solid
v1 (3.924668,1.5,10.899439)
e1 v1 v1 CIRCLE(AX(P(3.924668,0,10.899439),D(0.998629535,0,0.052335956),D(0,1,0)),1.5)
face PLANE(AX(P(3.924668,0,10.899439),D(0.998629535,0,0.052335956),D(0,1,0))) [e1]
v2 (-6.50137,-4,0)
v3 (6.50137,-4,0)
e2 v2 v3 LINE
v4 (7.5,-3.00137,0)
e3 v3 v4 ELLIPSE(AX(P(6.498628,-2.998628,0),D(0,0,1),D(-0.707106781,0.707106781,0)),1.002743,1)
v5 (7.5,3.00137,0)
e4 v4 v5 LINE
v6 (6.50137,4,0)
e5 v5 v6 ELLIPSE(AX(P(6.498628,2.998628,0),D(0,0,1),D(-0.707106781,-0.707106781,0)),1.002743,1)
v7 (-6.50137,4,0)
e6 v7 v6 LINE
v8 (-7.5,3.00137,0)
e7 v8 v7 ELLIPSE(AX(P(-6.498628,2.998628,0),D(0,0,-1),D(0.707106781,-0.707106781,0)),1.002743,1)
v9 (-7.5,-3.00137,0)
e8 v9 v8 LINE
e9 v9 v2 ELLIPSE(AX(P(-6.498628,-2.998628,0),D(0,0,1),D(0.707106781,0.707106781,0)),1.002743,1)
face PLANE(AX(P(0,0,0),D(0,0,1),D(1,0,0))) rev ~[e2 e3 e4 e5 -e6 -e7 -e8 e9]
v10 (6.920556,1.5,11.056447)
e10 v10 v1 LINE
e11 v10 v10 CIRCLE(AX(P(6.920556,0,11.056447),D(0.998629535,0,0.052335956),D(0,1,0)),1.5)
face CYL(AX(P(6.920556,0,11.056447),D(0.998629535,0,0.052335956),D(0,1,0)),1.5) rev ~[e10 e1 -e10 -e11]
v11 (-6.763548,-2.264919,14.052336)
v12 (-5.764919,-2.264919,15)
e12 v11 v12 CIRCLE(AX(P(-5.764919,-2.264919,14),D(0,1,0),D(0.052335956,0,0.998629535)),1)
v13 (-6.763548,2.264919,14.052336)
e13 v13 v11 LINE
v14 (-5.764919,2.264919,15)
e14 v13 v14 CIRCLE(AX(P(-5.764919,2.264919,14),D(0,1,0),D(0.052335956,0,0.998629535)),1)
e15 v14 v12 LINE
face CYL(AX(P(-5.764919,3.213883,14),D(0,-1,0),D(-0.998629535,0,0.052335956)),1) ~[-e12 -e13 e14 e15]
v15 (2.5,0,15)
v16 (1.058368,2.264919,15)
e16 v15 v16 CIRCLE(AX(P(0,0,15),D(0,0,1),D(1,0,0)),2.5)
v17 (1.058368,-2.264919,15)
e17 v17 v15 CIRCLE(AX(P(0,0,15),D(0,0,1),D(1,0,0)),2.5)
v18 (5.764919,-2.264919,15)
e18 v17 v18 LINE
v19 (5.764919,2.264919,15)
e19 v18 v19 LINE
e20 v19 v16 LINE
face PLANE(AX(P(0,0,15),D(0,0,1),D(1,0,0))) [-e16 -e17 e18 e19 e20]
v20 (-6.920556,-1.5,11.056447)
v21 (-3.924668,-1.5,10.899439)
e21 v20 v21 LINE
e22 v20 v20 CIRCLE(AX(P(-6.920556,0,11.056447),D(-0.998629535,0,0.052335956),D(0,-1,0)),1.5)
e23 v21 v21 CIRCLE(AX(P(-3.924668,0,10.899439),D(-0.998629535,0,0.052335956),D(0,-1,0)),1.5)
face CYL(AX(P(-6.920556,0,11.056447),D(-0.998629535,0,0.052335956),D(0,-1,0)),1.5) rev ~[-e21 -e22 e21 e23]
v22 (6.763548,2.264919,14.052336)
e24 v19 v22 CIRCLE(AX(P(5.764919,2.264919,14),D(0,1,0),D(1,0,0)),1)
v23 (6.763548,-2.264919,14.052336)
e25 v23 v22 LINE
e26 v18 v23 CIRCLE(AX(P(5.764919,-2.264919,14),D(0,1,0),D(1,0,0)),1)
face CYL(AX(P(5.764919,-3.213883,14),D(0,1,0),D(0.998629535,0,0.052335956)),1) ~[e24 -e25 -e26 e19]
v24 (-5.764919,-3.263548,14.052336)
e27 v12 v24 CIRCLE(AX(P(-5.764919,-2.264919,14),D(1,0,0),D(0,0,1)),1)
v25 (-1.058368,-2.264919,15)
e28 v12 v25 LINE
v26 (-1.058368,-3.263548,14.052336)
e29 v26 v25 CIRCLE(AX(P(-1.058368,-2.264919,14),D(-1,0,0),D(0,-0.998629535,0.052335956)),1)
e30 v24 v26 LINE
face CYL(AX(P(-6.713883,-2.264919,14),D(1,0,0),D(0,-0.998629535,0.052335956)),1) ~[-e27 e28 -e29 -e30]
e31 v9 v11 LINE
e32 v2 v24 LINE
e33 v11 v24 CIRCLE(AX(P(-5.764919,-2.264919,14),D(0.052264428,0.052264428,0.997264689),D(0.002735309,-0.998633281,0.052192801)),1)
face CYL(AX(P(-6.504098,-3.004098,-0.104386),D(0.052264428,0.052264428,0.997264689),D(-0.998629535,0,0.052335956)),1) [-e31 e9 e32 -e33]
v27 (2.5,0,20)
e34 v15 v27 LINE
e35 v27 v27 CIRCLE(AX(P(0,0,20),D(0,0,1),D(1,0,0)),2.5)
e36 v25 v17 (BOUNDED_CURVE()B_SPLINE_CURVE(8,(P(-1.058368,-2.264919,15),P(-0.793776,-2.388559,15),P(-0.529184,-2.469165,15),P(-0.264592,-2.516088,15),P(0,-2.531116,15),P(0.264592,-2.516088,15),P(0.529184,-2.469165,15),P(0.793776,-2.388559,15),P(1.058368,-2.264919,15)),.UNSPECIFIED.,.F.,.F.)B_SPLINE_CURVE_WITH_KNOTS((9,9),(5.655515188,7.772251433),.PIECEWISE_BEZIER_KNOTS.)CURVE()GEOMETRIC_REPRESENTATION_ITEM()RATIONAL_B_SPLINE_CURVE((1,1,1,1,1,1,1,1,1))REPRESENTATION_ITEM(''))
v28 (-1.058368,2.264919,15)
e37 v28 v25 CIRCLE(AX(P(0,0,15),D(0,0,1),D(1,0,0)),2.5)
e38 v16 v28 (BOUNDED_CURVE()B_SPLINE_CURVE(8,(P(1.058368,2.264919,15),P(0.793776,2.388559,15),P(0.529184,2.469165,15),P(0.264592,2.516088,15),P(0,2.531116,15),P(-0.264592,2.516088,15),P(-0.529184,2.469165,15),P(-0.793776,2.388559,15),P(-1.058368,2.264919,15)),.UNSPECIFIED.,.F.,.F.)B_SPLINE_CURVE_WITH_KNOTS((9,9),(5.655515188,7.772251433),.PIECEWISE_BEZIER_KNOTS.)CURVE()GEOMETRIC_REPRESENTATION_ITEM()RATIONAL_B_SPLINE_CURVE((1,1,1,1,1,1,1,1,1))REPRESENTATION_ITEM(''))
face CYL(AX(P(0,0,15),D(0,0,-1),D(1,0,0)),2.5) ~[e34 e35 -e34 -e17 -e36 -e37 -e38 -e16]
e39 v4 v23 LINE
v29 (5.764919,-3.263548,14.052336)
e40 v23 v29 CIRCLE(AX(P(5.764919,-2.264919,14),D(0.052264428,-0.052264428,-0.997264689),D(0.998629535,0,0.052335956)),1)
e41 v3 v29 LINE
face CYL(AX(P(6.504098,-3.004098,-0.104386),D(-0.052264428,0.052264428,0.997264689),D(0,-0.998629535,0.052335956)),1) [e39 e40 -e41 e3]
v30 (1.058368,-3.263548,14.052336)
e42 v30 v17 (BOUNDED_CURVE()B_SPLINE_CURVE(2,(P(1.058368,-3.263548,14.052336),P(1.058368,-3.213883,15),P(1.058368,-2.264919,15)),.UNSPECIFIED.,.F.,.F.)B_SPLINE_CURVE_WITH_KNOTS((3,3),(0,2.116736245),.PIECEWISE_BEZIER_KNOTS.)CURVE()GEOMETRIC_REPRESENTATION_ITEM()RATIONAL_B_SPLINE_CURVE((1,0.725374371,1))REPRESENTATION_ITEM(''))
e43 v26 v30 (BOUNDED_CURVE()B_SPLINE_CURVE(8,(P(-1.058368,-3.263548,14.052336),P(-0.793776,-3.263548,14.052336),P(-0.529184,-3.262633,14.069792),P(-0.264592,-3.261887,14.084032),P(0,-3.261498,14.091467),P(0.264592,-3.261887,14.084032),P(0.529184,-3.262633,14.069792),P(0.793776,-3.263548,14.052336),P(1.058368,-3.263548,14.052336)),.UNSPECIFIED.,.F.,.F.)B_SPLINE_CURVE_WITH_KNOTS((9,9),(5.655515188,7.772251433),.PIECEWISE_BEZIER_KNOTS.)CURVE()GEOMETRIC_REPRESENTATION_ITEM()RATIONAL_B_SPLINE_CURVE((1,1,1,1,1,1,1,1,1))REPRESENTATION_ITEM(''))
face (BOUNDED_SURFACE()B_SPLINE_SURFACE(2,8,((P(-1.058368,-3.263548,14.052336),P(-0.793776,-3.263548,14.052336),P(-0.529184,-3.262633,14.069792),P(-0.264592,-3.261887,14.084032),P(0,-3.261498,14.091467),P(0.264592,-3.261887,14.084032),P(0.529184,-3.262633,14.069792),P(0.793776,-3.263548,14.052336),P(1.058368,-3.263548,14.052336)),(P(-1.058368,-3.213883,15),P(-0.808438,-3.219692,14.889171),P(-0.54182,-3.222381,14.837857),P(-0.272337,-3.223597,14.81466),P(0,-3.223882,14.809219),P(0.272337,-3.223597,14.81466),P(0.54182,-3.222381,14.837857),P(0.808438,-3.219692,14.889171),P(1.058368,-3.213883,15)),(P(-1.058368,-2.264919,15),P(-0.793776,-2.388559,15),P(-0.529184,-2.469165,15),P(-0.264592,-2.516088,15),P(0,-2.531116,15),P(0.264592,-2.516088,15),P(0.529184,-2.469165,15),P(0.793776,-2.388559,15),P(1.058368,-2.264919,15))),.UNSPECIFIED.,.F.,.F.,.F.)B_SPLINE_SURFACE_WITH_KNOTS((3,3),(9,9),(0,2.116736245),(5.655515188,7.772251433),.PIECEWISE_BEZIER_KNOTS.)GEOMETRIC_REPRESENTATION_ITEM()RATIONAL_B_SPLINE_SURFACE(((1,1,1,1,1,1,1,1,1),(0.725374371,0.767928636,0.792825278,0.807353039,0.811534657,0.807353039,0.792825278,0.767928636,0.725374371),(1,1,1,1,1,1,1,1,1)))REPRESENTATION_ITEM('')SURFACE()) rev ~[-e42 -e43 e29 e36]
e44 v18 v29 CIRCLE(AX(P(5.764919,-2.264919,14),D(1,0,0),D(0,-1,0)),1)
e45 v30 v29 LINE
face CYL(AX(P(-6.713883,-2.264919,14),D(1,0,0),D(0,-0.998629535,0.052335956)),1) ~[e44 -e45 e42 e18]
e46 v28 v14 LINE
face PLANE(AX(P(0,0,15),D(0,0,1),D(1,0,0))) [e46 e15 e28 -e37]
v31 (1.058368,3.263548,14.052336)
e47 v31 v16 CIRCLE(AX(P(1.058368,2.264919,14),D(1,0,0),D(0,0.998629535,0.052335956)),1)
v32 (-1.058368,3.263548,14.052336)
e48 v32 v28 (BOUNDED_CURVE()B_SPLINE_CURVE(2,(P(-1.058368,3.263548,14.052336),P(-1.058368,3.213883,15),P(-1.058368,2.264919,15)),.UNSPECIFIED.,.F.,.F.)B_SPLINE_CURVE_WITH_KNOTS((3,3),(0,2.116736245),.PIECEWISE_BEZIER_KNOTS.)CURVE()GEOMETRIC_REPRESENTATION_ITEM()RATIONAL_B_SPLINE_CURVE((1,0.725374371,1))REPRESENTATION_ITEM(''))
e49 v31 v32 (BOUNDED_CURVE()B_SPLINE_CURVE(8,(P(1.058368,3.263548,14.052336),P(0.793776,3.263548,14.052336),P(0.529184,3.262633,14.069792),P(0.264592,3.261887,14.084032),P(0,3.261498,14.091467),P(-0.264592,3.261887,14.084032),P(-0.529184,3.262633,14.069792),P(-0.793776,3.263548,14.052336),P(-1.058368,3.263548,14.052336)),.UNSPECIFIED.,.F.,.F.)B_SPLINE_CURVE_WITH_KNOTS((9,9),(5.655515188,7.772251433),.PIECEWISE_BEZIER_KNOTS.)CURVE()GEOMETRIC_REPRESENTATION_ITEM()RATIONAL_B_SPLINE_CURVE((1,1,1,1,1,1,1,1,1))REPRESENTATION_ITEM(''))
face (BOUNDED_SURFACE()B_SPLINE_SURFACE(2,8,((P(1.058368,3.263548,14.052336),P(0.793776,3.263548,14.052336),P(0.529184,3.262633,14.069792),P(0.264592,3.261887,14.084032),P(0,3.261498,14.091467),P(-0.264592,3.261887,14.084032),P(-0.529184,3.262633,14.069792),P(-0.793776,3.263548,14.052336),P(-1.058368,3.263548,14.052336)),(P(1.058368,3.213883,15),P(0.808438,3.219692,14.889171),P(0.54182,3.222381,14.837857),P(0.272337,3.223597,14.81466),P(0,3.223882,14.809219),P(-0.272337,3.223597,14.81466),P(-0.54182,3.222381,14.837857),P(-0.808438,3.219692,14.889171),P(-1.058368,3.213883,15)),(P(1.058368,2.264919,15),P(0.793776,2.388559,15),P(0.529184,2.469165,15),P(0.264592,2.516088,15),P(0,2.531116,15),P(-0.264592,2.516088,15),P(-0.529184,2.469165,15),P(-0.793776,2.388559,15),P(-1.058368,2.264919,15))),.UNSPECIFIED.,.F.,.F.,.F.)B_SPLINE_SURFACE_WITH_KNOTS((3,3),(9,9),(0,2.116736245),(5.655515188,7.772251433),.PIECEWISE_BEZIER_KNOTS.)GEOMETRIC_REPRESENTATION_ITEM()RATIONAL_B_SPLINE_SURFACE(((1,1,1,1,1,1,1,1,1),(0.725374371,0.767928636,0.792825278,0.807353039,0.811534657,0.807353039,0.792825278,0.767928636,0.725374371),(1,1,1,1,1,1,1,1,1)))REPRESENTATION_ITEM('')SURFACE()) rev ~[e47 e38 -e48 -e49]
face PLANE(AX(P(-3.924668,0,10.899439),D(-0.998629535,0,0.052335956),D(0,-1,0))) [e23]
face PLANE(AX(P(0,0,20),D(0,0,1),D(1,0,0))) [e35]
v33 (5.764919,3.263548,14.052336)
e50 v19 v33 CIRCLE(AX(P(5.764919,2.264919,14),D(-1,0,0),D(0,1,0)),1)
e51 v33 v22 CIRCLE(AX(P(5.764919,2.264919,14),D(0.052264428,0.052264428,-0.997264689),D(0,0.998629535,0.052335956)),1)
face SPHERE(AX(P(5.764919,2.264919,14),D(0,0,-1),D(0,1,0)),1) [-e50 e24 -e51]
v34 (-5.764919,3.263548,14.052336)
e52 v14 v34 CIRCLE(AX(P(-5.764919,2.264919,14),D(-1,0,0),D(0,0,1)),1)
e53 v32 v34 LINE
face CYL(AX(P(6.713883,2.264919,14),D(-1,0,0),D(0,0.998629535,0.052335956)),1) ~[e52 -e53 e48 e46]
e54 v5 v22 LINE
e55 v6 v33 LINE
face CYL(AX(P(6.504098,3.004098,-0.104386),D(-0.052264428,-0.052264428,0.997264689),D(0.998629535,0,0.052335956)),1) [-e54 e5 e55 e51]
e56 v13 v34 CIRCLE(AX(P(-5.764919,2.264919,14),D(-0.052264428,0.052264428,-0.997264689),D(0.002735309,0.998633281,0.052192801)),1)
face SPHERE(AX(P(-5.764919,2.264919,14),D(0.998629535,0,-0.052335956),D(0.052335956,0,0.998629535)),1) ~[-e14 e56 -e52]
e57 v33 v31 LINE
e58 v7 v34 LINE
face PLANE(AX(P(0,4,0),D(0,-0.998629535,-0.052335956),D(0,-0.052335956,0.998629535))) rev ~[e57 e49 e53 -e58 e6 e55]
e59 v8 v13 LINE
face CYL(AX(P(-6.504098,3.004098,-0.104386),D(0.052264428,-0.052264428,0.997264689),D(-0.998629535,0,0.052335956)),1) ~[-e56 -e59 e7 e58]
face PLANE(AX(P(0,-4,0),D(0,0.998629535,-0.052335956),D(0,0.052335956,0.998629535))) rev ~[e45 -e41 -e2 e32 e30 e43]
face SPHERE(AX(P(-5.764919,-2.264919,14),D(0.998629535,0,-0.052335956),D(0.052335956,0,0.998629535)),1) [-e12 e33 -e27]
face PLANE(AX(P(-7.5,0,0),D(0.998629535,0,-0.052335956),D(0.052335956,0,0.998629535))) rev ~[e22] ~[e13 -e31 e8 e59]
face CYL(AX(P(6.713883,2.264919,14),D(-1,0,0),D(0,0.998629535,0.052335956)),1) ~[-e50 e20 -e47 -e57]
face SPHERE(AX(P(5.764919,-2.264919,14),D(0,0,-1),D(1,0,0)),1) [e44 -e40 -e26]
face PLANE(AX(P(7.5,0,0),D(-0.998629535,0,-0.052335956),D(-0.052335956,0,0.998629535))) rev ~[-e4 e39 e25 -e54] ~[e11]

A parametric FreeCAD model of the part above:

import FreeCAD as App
import Part
import Sketcher

V = App.Vector
Q = App.Units.Quantity


def edges_at(feature, points):
    """Names of the edges that pass closest to the given points."""
    edges = feature.Shape.Edges
    near = lambda p: min(range(len(edges)), key=lambda i: edges[i].distToShape(Part.Vertex(*p))[0])
    return sorted({f"Edge{near(p) + 1}" for p in points})


def add_polygon(sketch, points):
    """Adds a closed chain of lines whose ends are joined by coincident constraints."""
    first, n = sketch.GeometryCount, len(points)
    for a, b in zip(points, points[1:] + points[:1]):
        sketch.addGeometry(Part.LineSegment(App.Vector(*a, 0), App.Vector(*b, 0)), False)
    for i in range(n):
        sketch.addConstraint(Sketcher.Constraint("Coincident", first + i, 2, first + (i + 1) % n, 1))

doc = App.newDocument("Part")
body = doc.addObject("PartDesign::Body", "Body")

sketch1 = body.newObject("Sketcher::SketchObject", "Sketch")
sketch1.AttachmentSupport = (doc.getObject("XY_Plane"), [""])
sketch1.MapMode = "FlatFace"
add_polygon(sketch1, [(-7.5, 4), (-7.5, -4), (7.5, -4), (7.5, 4)])
sketch1.addConstraint([
    Sketcher.Constraint("Vertical", 0),
    Sketcher.Constraint("Horizontal", 1),
    Sketcher.Constraint("Vertical", 2),
    Sketcher.Constraint("Horizontal", 3),
    Sketcher.Constraint("Symmetric", 0, 2, 2, 2, -1, 1),
    Sketcher.Constraint("DistanceX", 1, 1, 1, 2, Q("15 mm")),
    Sketcher.Constraint("DistanceY", 0, 2, 0, 1, Q("8 mm")),
])
pad1 = body.newObject("PartDesign::Pad", "Pad")
pad1.Profile = sketch1
pad1.Length = 15
pad1.TaperAngle = -3

sketch2 = body.newObject("Sketcher::SketchObject", "Sketch001")
sketch2.AttachmentSupport = (doc.getObject("XY_Plane"), [""])
sketch2.MapMode = "FlatFace"
sketch2.AttachmentOffset = App.Placement(V(0, 0, 15), App.Rotation())
sketch2.addGeometry(Part.Circle(V(0, 0, 0), V(0, 0, 1), 2.5), False)
sketch2.addConstraint([
    Sketcher.Constraint("Coincident", 0, 3, -1, 1),
    Sketcher.Constraint("Diameter", 0, Q("5 mm")),
])
pad2 = body.newObject("PartDesign::Pad", "Pad001")
pad2.Profile = sketch2
pad2.Length = 5
doc.recompute()

fillet = body.newObject("PartDesign::Fillet", "Fillet")
fillet.Base = (pad2, edges_at(pad2, [
    (7.107, -3.607, 7.5),
    (7.107, 3.607, 7.5),
    (0, 3.214, 15),
    (6.714, 0, 15),
    (0, -3.214, 15),
    (-6.714, 0, 15),
    (-7.107, -3.607, 7.5),
    (-7.107, 3.607, 7.5),
]))
fillet.Radius = 1

sketch3 = body.newObject("Sketcher::SketchObject", "Sketch002")
sketch3.AttachmentSupport = (doc.getObject("YZ_Plane"), [""])
sketch3.MapMode = "FlatFace"
sketch3.addGeometry(Part.Circle(V(0, 11.052336, 0), V(0, 0, 1), 1.5), False)
sketch3.addConstraint([
    Sketcher.Constraint("PointOnObject", 0, 3, -2),
    Sketcher.Constraint("Diameter", 0, Q("3 mm")),
    Sketcher.Constraint("DistanceY", -1, 1, 0, 3, Q("11.052336 mm")),
])
pad3 = body.newObject("PartDesign::Pad", "Pad002")
pad3.Profile = sketch3
pad3.Length = 3
pad3.Midplane = True

sketch4 = body.newObject("Sketcher::SketchObject", "Sketch003")
sketch4.Placement = App.Placement(V(-7.479457, 0, 0.391982), App.Rotation(V(0, -1, 0), V(0.052335956, 0, 0.998629535), V(-0.998629535, 0, 0.052335956), "ZXY"))
sketch4.addGeometry(Part.Circle(V(0, 10.679101, 0), V(0, 0, 1), 1.5), False)
sketch4.addConstraint([
    Sketcher.Constraint("PointOnObject", 0, 3, -2),
    Sketcher.Constraint("Diameter", 0, Q("3 mm")),
    Sketcher.Constraint("DistanceY", -1, 1, 0, 3, Q("10.679101 mm")),
])
pocket1 = body.newObject("PartDesign::Pocket", "Pocket")
pocket1.Profile = sketch4
pocket1.Length = 3

sketch5 = body.newObject("Sketcher::SketchObject", "Sketch004")
sketch5.Placement = App.Placement(V(7.479457, 0, 0.391982), App.Rotation(V(0, 1, 0), V(-0.052335956, 0, 0.998629535), V(0.998629535, 0, 0.052335956), "ZXY"))
sketch5.addGeometry(Part.Circle(V(0, 10.679101, 0), V(0, 0, 1), 1.5), False)
sketch5.addConstraint([
    Sketcher.Constraint("PointOnObject", 0, 3, -2),
    Sketcher.Constraint("Diameter", 0, Q("3 mm")),
    Sketcher.Constraint("DistanceY", -1, 1, 0, 3, Q("10.679101 mm")),
])
pocket2 = body.newObject("PartDesign::Pocket", "Pocket001")
pocket2.Profile = sketch5
pocket2.Length = 3

doc.recompute()
